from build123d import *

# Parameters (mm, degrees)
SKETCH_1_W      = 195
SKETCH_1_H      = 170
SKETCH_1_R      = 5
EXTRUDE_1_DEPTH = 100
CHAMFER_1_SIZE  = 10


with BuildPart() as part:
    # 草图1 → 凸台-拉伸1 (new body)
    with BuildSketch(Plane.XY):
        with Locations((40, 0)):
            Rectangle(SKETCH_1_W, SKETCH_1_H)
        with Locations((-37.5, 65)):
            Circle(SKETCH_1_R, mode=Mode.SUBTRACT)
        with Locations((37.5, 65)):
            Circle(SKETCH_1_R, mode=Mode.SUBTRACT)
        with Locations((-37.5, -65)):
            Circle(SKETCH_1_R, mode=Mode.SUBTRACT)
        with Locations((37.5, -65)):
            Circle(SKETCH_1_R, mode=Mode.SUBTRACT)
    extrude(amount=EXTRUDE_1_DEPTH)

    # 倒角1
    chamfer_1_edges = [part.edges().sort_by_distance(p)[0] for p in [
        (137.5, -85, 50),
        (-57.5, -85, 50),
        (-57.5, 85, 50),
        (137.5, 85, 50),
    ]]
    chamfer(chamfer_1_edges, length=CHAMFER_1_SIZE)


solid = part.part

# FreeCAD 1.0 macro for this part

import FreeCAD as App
import Part
import Sketcher
from FreeCAD import Vector


def edges_at(feature, points):
    """Names of the edges that pass closest to the given points."""
    edges = feature.Shape.Edges
    near = lambda p: min(range(len(edges)), key=lambda i: edges[i].distToShape(Part.Vertex(*p))[0])
    return sorted({f"Edge{near(p) + 1}" for p in points})

doc = App.newDocument("Part")
body = doc.addObject("PartDesign::Body", "Body")

sketch1 = doc.addObject("Sketcher::SketchObject", "Sketch")
body.addObject(sketch1)
sketch1.AttachmentSupport = (doc.XY_Plane, [""])
sketch1.MapMode = "FlatFace"
sketch1.addGeometry(Part.LineSegment(Vector(-58, 85, 0), Vector(-58, -85, 0)), False)
sketch1.addGeometry(Part.LineSegment(Vector(-58, -85, 0), Vector(138, -85, 0)), False)
sketch1.addGeometry(Part.LineSegment(Vector(138, -85, 0), Vector(138, 85, 0)), False)
sketch1.addGeometry(Part.LineSegment(Vector(138, 85, 0), Vector(-58, 85, 0)), False)
sketch1.addGeometry(Part.Circle(Vector(-38, -65, 0), Vector(0, 0, 1), 5), False)
sketch1.addGeometry(Part.Circle(Vector(38, -65, 0), Vector(0, 0, 1), 5), False)
sketch1.addGeometry(Part.Circle(Vector(-38, 65, 0), Vector(0, 0, 1), 5), False)
sketch1.addGeometry(Part.Circle(Vector(38, 65, 0), Vector(0, 0, 1), 5), False)
sketch1.addConstraint(Sketcher.Constraint("Coincident", 0, 2, 1, 1))
sketch1.addConstraint(Sketcher.Constraint("Coincident", 1, 2, 2, 1))
sketch1.addConstraint(Sketcher.Constraint("Coincident", 2, 2, 3, 1))
sketch1.addConstraint(Sketcher.Constraint("Coincident", 3, 2, 0, 1))
sketch1.addConstraint(Sketcher.Constraint("Vertical", 0))
sketch1.addConstraint(Sketcher.Constraint("Horizontal", 1))
sketch1.addConstraint(Sketcher.Constraint("Vertical", 2))
sketch1.addConstraint(Sketcher.Constraint("Horizontal", 3))
sketch1.addConstraint(Sketcher.Constraint("Equal", 4, 5))
sketch1.addConstraint(Sketcher.Constraint("Equal", 5, 6))
sketch1.addConstraint(Sketcher.Constraint("Equal", 6, 7))
sketch1.addConstraint(Sketcher.Constraint("Symmetric", 5, 3, 6, 3, -1, 1))
sketch1.addConstraint(Sketcher.Constraint("Symmetric", 4, 3, 7, 3, -1, 1))
sketch1.addConstraint(Sketcher.Constraint("Symmetric", 4, 3, 5, 3, -2))
sketch1.addConstraint(Sketcher.Constraint("Diameter", 4, 10.0))
sketch1.addConstraint(Sketcher.Constraint("DistanceX", 1, 1, 1, 2, 195.0))
sketch1.addConstraint(Sketcher.Constraint("DistanceY", 0, 2, 0, 1, 170.0))
sketch1.addConstraint(Sketcher.Constraint("DistanceY", 4, 3, -1, 1, 65.0))
sketch1.addConstraint(Sketcher.Constraint("DistanceY", 0, 2, -1, 1, 85.0))
sketch1.addConstraint(Sketcher.Constraint("DistanceX", 4, 3, 5, 3, 75.0))
sketch1.addConstraint(Sketcher.Constraint("DistanceX", 0, 2, 4, 3, 20.0))
pad1 = doc.addObject("PartDesign::Pad", "Pad")
body.addObject(pad1)
pad1.Profile = sketch1
pad1.Length = 100
doc.recompute()

chamfer = doc.addObject("PartDesign::Chamfer", "Chamfer")
body.addObject(chamfer)
chamfer.Base = (pad1, edges_at(pad1, [
    (137.5, -85, 50),
    (-57.5, -85, 50),
    (-57.5, 85, 50),
    (137.5, 85, 50),
]))
chamfer.Size = 10

doc.recompute()
